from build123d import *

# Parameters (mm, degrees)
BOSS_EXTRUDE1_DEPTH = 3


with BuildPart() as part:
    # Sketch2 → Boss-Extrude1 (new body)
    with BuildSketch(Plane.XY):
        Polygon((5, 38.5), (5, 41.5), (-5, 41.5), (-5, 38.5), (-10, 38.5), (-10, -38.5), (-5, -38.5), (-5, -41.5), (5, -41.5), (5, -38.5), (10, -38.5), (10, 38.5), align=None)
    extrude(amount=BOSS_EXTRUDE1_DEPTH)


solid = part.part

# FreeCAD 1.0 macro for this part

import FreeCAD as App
import Part
import Sketcher
from FreeCAD import Vector
Q = App.Units.Quantity


def add_polygon(sketch, points):
    """Adds a closed chain of lines whose ends are joined by coincident constraints."""
    first, n = sketch.GeometryCount, len(points)
    for a, b in zip(points, points[1:] + points[:1]):
        sketch.addGeometry(Part.LineSegment(App.Vector(*a, 0), App.Vector(*b, 0)), False)
    for i in range(n):
        sketch.addConstraint(Sketcher.Constraint("Coincident", first + i, 2, first + (i + 1) % n, 1))

doc = App.newDocument("Part")
params = doc.addObject("Spreadsheet::Sheet", "Params")
for row, (alias, value) in enumerate([
    ("sketch1_width", "10 mm"),
    ("sketch1_width2", "5 mm"),
    ("sketch1_height", "3 mm"),
    ("sketch1_height2", "77 mm"),
    ("pad1_length", "3 mm"),
], start=1):
    params.set(f"A{row}", alias)
    params.set(f"B{row}", "=" + value)
    params.setAlias(f"B{row}", alias)

body = doc.addObject("PartDesign::Body", "Body")

# Sketch on XY plane
sketch1 = doc.addObject("Sketcher::SketchObject", "Sketch")
body.addObject(sketch1)
sketch1.AttachmentSupport = (doc.XY_Plane, [""])
sketch1.MapMode = "FlatFace"
add_polygon(sketch1, [(5, 38.5), (5, 41.5), (-5, 41.5), (-5, 38.5), (-10, 38.5), (-10, -38.5), (-5, -38.5), (-5, -41.5), (5, -41.5), (5, -38.5), (10, -38.5), (10, 38.5)])  # lines 0-11
sketch1.addConstraint(Sketcher.Constraint("Vertical", 0))
sketch1.addConstraint(Sketcher.Constraint("Horizontal", 1))
sketch1.addConstraint(Sketcher.Constraint("Vertical", 2))
sketch1.addConstraint(Sketcher.Constraint("Horizontal", 3))
sketch1.addConstraint(Sketcher.Constraint("Vertical", 4))
sketch1.addConstraint(Sketcher.Constraint("Horizontal", 5))
sketch1.addConstraint(Sketcher.Constraint("Vertical", 6))
sketch1.addConstraint(Sketcher.Constraint("Horizontal", 7))
sketch1.addConstraint(Sketcher.Constraint("Vertical", 8))
sketch1.addConstraint(Sketcher.Constraint("Horizontal", 9))
sketch1.addConstraint(Sketcher.Constraint("Vertical", 10))
sketch1.addConstraint(Sketcher.Constraint("Horizontal", 11))
sketch1.addConstraint(Sketcher.Constraint("Symmetric", 0, 2, 6, 2, -1, 1))
sketch1.addConstraint(Sketcher.Constraint("Symmetric", 2, 2, 8, 2, -1, 1))
sketch1.addConstraint(Sketcher.Constraint("Symmetric", 4, 2, 10, 2, -1, 1))
sketch1.addConstraint(Sketcher.Constraint("Symmetric", 5, 2, 8, 2, -2))
sketch1.addConstraint(Sketcher.Constraint("DistanceX", 1, 2, 1, 1, Q("10 mm")))
sketch1.addConstraint(Sketcher.Constraint("DistanceX", 3, 2, 3, 1, Q("5 mm")))
sketch1.addConstraint(Sketcher.Constraint("DistanceY", 0, 1, 0, 2, Q("3 mm")))
sketch1.addConstraint(Sketcher.Constraint("DistanceY", 4, 2, 4, 1, Q("77 mm")))
sketch1.setExpression("Constraints[28]", "Params.sketch1_width")
sketch1.setExpression("Constraints[29]", "Params.sketch1_width2")
sketch1.setExpression("Constraints[30]", "Params.sketch1_height")
sketch1.setExpression("Constraints[31]", "Params.sketch1_height2")
pad1 = doc.addObject("PartDesign::Pad", "Pad")
body.addObject(pad1)
pad1.Profile = sketch1
pad1.setExpression("Length", "Params.pad1_length")

doc.recompute()
